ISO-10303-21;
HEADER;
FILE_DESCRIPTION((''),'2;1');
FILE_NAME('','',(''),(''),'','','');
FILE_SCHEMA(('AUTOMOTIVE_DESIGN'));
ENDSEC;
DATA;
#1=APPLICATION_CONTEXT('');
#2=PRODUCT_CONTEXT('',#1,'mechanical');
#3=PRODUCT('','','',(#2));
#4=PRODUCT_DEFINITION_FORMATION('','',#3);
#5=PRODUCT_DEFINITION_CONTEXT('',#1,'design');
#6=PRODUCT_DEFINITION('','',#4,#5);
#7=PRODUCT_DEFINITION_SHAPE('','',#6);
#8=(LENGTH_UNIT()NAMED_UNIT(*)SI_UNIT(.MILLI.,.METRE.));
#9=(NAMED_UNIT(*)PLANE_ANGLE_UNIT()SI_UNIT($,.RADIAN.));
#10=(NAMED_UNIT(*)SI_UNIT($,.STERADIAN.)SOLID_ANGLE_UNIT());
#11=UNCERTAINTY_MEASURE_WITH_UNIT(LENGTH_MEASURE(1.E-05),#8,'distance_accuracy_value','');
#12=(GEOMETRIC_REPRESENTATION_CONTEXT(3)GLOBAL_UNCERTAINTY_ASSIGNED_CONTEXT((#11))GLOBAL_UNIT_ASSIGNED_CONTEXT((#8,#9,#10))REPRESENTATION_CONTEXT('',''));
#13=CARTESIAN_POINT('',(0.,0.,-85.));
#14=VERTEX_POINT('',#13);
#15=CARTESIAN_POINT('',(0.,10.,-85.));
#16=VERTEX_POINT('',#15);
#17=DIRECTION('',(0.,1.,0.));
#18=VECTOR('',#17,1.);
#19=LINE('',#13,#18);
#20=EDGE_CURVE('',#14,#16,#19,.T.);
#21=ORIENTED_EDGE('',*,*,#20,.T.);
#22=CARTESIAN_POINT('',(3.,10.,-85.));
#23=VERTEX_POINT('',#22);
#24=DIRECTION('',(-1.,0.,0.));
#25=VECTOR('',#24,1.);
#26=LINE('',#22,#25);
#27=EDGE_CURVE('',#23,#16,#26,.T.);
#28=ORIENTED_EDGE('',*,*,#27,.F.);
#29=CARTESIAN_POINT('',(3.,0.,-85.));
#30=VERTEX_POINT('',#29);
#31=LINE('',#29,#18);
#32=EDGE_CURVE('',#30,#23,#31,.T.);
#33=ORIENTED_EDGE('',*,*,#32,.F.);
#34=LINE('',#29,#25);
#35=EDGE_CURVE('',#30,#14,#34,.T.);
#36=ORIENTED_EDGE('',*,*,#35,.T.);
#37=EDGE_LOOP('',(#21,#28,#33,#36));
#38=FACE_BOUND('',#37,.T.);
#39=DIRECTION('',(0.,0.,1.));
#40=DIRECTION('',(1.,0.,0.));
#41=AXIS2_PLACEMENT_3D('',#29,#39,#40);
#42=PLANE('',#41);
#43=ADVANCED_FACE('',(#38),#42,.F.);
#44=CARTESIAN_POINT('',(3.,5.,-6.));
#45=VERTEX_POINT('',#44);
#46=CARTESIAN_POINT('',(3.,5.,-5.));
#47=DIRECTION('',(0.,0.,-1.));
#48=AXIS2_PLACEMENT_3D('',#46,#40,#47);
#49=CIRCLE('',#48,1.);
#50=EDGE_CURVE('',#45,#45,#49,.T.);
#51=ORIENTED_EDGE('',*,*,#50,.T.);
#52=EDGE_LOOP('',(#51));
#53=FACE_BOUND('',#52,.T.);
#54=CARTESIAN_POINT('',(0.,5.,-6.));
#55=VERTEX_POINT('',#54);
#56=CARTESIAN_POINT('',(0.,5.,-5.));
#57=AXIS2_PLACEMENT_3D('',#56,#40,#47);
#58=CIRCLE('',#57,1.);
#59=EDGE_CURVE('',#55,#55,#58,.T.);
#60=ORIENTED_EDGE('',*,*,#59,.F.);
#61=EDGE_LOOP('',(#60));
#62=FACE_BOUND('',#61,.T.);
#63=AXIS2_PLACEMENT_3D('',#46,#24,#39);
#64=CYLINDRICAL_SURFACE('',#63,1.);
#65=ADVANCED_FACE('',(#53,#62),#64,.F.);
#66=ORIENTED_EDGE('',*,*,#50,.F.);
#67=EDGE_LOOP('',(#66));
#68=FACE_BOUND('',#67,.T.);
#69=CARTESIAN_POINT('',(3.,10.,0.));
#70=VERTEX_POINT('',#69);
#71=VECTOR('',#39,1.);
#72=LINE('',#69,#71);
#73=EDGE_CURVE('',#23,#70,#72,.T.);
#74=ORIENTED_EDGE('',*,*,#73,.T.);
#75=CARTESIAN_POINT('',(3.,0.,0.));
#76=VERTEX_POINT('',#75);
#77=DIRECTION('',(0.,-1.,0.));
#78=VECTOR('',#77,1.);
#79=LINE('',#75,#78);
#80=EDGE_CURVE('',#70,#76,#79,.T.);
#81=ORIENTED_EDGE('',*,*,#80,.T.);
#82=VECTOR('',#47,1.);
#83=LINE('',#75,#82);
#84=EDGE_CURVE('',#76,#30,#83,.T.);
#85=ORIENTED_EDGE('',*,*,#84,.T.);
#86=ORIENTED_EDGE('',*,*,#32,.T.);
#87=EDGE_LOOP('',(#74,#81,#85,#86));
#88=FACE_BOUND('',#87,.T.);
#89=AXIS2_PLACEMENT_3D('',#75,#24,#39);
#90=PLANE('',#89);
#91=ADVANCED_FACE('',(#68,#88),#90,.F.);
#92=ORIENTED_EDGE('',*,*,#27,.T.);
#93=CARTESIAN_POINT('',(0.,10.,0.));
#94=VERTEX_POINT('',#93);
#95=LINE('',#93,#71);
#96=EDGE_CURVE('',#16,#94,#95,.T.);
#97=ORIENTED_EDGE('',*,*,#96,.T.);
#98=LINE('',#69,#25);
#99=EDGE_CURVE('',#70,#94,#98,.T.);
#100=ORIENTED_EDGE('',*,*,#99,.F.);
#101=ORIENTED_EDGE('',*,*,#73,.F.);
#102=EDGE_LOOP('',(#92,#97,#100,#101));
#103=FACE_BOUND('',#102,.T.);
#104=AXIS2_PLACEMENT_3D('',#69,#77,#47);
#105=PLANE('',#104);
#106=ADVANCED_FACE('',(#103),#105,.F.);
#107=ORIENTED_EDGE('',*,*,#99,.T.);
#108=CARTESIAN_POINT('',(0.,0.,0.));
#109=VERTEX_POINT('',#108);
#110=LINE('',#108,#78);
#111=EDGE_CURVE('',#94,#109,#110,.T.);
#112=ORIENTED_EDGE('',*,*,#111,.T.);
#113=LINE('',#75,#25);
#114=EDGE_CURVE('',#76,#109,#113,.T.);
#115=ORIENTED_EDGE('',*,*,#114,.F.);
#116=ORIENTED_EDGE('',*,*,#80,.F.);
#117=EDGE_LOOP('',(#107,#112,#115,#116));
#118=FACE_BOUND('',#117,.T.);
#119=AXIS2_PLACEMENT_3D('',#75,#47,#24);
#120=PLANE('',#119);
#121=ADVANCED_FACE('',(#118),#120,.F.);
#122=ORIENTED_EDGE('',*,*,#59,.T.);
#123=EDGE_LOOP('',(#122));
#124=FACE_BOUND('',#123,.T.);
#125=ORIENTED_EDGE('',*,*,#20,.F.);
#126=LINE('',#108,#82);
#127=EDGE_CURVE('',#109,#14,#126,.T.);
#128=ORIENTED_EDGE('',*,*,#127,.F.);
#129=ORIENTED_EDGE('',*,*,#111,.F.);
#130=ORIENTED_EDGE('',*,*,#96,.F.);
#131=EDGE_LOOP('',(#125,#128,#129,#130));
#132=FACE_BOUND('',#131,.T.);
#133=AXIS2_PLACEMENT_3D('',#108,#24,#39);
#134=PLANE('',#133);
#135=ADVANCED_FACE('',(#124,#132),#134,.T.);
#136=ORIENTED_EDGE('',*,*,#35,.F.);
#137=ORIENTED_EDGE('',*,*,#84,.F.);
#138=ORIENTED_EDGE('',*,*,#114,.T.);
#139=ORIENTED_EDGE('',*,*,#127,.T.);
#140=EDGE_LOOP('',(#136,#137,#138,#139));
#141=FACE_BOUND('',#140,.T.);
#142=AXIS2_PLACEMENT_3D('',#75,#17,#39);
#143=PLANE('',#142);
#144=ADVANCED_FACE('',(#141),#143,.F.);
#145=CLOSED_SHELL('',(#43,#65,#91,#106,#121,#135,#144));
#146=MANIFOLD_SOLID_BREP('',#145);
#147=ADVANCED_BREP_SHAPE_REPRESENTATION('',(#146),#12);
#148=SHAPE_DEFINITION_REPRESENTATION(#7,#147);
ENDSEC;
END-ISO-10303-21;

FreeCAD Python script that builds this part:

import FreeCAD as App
import Part
import Sketcher

V = App.Vector
Q = App.Units.Quantity


def add_polygon(sketch, points):
    """Adds a closed chain of lines whose ends are joined by coincident constraints."""
    first, n = sketch.GeometryCount, len(points)
    for a, b in zip(points, points[1:] + points[:1]):
        sketch.addGeometry(Part.LineSegment(App.Vector(*a, 0), App.Vector(*b, 0)), False)
    for i in range(n):
        sketch.addConstraint(Sketcher.Constraint("Coincident", first + i, 2, first + (i + 1) % n, 1))

doc = App.newDocument("Part")
body = doc.addObject("PartDesign::Body", "Body")

sketch1 = body.newObject("Sketcher::SketchObject", "Sketch")
sketch1.AttachmentSupport = (doc.getObject("YZ_Plane"), [""])
sketch1.MapMode = "FlatFace"
add_polygon(sketch1, [(10, 0), (0, 0), (0, -85), (10, -85)])
sketch1.addGeometry(Part.Circle(V(5, -5, 0), V(0, 0, 1), 1), False)
sketch1.addConstraint([
    Sketcher.Constraint("Horizontal", 0),
    Sketcher.Constraint("Vertical", 1),
    Sketcher.Constraint("Horizontal", 2),
    Sketcher.Constraint("Vertical", 3),
    Sketcher.Constraint("Coincident", 0, 2, -1, 1),
    Sketcher.Constraint("Diameter", 4, Q("2 mm")),
    Sketcher.Constraint("DistanceX", 0, 2, 0, 1, Q("10 mm")),
    Sketcher.Constraint("DistanceY", 1, 2, 1, 1, Q("85 mm")),
    Sketcher.Constraint("DistanceX", -1, 1, 4, 3, Q("5 mm")),
    Sketcher.Constraint("DistanceY", 4, 3, -1, 1, Q("5 mm")),
])
pad1 = body.newObject("PartDesign::Pad", "Pad")
pad1.Profile = sketch1
pad1.Length = 3

doc.recompute()
